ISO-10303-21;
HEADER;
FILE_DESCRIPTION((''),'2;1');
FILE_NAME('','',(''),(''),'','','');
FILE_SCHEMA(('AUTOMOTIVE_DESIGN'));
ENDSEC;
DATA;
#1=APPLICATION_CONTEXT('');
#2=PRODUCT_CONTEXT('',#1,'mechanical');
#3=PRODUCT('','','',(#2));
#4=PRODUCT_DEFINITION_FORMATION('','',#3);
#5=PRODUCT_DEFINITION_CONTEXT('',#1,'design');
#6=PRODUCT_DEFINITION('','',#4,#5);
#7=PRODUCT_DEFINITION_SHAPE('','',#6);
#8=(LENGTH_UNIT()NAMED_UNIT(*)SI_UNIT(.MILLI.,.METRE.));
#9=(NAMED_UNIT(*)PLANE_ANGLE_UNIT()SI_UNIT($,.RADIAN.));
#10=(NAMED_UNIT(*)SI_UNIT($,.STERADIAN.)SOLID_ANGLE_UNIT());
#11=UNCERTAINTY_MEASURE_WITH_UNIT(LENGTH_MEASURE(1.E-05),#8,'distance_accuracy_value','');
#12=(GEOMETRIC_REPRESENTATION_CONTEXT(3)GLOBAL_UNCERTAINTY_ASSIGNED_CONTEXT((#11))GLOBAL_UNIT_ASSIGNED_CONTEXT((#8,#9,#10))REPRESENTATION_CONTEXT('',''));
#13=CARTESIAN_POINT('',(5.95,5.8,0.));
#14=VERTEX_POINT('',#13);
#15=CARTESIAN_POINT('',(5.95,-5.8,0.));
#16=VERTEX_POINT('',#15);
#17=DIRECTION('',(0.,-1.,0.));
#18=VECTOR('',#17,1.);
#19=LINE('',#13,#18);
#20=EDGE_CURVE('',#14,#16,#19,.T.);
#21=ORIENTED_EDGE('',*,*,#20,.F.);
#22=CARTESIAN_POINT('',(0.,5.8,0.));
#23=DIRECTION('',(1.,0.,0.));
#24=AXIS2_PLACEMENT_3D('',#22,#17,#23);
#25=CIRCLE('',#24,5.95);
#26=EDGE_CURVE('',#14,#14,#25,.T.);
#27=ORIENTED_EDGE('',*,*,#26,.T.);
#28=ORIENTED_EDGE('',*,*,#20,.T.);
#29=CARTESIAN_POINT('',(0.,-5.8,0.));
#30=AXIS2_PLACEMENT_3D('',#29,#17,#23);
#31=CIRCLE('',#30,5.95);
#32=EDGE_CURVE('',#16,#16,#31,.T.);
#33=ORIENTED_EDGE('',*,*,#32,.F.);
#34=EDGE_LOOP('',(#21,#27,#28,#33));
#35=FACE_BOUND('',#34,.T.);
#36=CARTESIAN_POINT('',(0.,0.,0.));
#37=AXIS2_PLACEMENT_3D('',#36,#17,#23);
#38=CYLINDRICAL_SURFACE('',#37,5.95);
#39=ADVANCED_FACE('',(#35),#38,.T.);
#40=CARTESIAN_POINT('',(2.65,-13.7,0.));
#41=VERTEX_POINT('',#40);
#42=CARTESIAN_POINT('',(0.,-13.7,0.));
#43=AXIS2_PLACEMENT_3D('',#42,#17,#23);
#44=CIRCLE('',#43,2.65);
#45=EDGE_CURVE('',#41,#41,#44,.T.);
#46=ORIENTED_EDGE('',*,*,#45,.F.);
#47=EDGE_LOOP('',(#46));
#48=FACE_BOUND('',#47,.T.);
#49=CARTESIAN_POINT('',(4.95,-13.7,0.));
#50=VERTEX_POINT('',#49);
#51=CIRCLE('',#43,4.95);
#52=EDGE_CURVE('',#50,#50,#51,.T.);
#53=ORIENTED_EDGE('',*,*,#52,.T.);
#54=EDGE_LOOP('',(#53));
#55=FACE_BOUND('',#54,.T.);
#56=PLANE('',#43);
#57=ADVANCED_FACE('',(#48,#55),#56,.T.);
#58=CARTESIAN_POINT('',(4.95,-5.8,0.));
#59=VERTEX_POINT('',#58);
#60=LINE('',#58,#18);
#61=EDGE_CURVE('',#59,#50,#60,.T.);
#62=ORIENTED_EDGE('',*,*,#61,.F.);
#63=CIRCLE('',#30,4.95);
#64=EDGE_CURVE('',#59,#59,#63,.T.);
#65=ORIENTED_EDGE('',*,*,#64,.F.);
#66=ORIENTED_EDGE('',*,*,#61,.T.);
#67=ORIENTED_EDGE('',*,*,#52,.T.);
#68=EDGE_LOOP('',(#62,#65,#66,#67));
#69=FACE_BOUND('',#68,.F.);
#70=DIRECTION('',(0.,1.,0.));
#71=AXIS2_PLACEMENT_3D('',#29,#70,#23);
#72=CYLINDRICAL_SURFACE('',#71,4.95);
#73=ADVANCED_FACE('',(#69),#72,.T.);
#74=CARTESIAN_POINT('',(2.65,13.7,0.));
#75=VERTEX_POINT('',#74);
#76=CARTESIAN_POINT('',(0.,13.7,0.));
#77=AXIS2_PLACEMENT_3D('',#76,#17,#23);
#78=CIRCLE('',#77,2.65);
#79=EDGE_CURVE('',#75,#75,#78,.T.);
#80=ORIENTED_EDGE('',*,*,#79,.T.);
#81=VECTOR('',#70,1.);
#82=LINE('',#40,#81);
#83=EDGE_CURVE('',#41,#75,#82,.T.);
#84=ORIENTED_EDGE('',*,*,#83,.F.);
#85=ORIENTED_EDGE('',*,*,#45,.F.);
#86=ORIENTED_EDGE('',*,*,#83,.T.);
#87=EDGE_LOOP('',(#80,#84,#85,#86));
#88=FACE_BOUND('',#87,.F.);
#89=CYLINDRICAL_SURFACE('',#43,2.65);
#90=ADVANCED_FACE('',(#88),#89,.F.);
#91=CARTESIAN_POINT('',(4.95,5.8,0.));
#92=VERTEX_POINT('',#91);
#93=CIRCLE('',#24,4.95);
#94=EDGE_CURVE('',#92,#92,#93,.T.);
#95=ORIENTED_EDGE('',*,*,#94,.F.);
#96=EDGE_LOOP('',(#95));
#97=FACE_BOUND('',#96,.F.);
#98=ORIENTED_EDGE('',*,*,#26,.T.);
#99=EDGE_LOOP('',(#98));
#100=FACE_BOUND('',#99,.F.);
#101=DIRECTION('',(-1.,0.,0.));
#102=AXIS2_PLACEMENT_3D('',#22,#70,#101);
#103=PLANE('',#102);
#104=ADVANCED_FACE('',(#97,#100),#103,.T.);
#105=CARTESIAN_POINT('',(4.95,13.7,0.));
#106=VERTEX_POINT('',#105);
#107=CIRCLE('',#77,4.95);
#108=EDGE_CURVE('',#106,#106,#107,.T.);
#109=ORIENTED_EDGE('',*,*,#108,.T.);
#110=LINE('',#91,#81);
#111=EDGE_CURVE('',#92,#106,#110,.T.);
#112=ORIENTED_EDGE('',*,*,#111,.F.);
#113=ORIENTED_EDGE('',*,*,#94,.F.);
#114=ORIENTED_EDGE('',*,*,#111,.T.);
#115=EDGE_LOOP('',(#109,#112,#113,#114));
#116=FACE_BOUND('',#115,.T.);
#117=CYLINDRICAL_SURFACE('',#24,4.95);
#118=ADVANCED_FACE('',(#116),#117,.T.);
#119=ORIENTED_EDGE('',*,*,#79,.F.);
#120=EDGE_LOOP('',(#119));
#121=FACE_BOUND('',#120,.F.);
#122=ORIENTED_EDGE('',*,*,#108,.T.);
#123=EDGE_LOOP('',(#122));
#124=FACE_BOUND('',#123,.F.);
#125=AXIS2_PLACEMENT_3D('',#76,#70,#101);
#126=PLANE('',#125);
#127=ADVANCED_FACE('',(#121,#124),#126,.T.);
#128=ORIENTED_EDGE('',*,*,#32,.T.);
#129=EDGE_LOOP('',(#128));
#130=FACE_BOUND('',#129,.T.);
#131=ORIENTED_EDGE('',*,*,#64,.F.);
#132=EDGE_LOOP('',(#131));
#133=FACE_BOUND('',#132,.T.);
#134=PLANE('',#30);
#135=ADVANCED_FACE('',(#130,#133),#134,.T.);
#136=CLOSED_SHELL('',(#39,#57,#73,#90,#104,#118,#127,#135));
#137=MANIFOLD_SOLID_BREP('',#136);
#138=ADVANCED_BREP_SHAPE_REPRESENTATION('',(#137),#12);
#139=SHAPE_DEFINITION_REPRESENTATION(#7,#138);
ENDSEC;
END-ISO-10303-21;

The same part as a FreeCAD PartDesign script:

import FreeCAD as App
import Part
import Sketcher
from FreeCAD import Vector

doc = App.newDocument("Part")
body = doc.addObject("PartDesign::Body", "Body")

# Sketch on XZ plane
sketch1 = doc.addObject("Sketcher::SketchObject", "Sketch")
body.addObject(sketch1)
sketch1.AttachmentSupport = (doc.XZ_Plane, [""])
sketch1.MapMode = "FlatFace"
sketch1.addGeometry(Part.Circle(Vector(0, 0, 0), Vector(0, 0, 1), 5.95), False)
sketch1.addConstraint(Sketcher.Constraint("Coincident", 0, 3, -1, 1))
sketch1.addConstraint(Sketcher.Constraint("Diameter", 0, 11.9))
pad1 = doc.addObject("PartDesign::Pad", "Pad")
body.addObject(pad1)
pad1.Profile = sketch1
pad1.Length = 5.8

# Sketch on XZ plane
sketch2 = doc.addObject("Sketcher::SketchObject", "Sketch001")
body.addObject(sketch2)
sketch2.AttachmentSupport = (doc.XZ_Plane, [""])
sketch2.MapMode = "FlatFace"
sketch2.AttachmentOffset = App.Placement(Vector(0, 0, 5.8), App.Rotation())
sketch2.addGeometry(Part.Circle(Vector(0, 0, 0), Vector(0, 0, 1), 4.95), False)
sketch2.addConstraint(Sketcher.Constraint("Coincident", 0, 3, -1, 1))
sketch2.addConstraint(Sketcher.Constraint("Diameter", 0, 9.9))
pad2 = doc.addObject("PartDesign::Pad", "Pad001")
body.addObject(pad2)
pad2.Profile = sketch2
pad2.Length = 7.9
body2 = doc.addObject("PartDesign::Body", "Body001")
doc.recompute()

body2.BaseFeature = body
doc.recompute()

mirroring = doc.addObject("Part::Mirroring", "Mirroring")
mirroring.Source = body
mirroring.Base = Vector(0, 0, 0)
mirroring.Normal = Vector(0, 1, 0)
body3 = doc.addObject("PartDesign::Body", "Body002")
body3.BaseFeature = mirroring
boolean = doc.addObject("PartDesign::Boolean", "Boolean")
body2.addObject(boolean)
boolean.Type = "Fuse"
boolean.addObjects([body3])
doc.recompute()

# Sketch on XZ plane
sketch3 = doc.addObject("Sketcher::SketchObject", "Sketch002")
body2.addObject(sketch3)
sketch3.AttachmentSupport = (doc.getObject("XZ_Plane001"), [""])
sketch3.MapMode = "FlatFace"
sketch3.AttachmentOffset = App.Placement(Vector(0, 0, 13.7), App.Rotation())
sketch3.addGeometry(Part.Circle(Vector(0, 0, 0), Vector(0, 0, 1), 2.65), False)
sketch3.addConstraint(Sketcher.Constraint("Coincident", 0, 3, -1, 1))
sketch3.addConstraint(Sketcher.Constraint("Diameter", 0, 5.3))
pocket1 = doc.addObject("PartDesign::Pocket", "Pocket")
body2.addObject(pocket1)
pocket1.Profile = sketch3
pocket1.Length = 35
mirroring.Visibility = False

doc.recompute()
